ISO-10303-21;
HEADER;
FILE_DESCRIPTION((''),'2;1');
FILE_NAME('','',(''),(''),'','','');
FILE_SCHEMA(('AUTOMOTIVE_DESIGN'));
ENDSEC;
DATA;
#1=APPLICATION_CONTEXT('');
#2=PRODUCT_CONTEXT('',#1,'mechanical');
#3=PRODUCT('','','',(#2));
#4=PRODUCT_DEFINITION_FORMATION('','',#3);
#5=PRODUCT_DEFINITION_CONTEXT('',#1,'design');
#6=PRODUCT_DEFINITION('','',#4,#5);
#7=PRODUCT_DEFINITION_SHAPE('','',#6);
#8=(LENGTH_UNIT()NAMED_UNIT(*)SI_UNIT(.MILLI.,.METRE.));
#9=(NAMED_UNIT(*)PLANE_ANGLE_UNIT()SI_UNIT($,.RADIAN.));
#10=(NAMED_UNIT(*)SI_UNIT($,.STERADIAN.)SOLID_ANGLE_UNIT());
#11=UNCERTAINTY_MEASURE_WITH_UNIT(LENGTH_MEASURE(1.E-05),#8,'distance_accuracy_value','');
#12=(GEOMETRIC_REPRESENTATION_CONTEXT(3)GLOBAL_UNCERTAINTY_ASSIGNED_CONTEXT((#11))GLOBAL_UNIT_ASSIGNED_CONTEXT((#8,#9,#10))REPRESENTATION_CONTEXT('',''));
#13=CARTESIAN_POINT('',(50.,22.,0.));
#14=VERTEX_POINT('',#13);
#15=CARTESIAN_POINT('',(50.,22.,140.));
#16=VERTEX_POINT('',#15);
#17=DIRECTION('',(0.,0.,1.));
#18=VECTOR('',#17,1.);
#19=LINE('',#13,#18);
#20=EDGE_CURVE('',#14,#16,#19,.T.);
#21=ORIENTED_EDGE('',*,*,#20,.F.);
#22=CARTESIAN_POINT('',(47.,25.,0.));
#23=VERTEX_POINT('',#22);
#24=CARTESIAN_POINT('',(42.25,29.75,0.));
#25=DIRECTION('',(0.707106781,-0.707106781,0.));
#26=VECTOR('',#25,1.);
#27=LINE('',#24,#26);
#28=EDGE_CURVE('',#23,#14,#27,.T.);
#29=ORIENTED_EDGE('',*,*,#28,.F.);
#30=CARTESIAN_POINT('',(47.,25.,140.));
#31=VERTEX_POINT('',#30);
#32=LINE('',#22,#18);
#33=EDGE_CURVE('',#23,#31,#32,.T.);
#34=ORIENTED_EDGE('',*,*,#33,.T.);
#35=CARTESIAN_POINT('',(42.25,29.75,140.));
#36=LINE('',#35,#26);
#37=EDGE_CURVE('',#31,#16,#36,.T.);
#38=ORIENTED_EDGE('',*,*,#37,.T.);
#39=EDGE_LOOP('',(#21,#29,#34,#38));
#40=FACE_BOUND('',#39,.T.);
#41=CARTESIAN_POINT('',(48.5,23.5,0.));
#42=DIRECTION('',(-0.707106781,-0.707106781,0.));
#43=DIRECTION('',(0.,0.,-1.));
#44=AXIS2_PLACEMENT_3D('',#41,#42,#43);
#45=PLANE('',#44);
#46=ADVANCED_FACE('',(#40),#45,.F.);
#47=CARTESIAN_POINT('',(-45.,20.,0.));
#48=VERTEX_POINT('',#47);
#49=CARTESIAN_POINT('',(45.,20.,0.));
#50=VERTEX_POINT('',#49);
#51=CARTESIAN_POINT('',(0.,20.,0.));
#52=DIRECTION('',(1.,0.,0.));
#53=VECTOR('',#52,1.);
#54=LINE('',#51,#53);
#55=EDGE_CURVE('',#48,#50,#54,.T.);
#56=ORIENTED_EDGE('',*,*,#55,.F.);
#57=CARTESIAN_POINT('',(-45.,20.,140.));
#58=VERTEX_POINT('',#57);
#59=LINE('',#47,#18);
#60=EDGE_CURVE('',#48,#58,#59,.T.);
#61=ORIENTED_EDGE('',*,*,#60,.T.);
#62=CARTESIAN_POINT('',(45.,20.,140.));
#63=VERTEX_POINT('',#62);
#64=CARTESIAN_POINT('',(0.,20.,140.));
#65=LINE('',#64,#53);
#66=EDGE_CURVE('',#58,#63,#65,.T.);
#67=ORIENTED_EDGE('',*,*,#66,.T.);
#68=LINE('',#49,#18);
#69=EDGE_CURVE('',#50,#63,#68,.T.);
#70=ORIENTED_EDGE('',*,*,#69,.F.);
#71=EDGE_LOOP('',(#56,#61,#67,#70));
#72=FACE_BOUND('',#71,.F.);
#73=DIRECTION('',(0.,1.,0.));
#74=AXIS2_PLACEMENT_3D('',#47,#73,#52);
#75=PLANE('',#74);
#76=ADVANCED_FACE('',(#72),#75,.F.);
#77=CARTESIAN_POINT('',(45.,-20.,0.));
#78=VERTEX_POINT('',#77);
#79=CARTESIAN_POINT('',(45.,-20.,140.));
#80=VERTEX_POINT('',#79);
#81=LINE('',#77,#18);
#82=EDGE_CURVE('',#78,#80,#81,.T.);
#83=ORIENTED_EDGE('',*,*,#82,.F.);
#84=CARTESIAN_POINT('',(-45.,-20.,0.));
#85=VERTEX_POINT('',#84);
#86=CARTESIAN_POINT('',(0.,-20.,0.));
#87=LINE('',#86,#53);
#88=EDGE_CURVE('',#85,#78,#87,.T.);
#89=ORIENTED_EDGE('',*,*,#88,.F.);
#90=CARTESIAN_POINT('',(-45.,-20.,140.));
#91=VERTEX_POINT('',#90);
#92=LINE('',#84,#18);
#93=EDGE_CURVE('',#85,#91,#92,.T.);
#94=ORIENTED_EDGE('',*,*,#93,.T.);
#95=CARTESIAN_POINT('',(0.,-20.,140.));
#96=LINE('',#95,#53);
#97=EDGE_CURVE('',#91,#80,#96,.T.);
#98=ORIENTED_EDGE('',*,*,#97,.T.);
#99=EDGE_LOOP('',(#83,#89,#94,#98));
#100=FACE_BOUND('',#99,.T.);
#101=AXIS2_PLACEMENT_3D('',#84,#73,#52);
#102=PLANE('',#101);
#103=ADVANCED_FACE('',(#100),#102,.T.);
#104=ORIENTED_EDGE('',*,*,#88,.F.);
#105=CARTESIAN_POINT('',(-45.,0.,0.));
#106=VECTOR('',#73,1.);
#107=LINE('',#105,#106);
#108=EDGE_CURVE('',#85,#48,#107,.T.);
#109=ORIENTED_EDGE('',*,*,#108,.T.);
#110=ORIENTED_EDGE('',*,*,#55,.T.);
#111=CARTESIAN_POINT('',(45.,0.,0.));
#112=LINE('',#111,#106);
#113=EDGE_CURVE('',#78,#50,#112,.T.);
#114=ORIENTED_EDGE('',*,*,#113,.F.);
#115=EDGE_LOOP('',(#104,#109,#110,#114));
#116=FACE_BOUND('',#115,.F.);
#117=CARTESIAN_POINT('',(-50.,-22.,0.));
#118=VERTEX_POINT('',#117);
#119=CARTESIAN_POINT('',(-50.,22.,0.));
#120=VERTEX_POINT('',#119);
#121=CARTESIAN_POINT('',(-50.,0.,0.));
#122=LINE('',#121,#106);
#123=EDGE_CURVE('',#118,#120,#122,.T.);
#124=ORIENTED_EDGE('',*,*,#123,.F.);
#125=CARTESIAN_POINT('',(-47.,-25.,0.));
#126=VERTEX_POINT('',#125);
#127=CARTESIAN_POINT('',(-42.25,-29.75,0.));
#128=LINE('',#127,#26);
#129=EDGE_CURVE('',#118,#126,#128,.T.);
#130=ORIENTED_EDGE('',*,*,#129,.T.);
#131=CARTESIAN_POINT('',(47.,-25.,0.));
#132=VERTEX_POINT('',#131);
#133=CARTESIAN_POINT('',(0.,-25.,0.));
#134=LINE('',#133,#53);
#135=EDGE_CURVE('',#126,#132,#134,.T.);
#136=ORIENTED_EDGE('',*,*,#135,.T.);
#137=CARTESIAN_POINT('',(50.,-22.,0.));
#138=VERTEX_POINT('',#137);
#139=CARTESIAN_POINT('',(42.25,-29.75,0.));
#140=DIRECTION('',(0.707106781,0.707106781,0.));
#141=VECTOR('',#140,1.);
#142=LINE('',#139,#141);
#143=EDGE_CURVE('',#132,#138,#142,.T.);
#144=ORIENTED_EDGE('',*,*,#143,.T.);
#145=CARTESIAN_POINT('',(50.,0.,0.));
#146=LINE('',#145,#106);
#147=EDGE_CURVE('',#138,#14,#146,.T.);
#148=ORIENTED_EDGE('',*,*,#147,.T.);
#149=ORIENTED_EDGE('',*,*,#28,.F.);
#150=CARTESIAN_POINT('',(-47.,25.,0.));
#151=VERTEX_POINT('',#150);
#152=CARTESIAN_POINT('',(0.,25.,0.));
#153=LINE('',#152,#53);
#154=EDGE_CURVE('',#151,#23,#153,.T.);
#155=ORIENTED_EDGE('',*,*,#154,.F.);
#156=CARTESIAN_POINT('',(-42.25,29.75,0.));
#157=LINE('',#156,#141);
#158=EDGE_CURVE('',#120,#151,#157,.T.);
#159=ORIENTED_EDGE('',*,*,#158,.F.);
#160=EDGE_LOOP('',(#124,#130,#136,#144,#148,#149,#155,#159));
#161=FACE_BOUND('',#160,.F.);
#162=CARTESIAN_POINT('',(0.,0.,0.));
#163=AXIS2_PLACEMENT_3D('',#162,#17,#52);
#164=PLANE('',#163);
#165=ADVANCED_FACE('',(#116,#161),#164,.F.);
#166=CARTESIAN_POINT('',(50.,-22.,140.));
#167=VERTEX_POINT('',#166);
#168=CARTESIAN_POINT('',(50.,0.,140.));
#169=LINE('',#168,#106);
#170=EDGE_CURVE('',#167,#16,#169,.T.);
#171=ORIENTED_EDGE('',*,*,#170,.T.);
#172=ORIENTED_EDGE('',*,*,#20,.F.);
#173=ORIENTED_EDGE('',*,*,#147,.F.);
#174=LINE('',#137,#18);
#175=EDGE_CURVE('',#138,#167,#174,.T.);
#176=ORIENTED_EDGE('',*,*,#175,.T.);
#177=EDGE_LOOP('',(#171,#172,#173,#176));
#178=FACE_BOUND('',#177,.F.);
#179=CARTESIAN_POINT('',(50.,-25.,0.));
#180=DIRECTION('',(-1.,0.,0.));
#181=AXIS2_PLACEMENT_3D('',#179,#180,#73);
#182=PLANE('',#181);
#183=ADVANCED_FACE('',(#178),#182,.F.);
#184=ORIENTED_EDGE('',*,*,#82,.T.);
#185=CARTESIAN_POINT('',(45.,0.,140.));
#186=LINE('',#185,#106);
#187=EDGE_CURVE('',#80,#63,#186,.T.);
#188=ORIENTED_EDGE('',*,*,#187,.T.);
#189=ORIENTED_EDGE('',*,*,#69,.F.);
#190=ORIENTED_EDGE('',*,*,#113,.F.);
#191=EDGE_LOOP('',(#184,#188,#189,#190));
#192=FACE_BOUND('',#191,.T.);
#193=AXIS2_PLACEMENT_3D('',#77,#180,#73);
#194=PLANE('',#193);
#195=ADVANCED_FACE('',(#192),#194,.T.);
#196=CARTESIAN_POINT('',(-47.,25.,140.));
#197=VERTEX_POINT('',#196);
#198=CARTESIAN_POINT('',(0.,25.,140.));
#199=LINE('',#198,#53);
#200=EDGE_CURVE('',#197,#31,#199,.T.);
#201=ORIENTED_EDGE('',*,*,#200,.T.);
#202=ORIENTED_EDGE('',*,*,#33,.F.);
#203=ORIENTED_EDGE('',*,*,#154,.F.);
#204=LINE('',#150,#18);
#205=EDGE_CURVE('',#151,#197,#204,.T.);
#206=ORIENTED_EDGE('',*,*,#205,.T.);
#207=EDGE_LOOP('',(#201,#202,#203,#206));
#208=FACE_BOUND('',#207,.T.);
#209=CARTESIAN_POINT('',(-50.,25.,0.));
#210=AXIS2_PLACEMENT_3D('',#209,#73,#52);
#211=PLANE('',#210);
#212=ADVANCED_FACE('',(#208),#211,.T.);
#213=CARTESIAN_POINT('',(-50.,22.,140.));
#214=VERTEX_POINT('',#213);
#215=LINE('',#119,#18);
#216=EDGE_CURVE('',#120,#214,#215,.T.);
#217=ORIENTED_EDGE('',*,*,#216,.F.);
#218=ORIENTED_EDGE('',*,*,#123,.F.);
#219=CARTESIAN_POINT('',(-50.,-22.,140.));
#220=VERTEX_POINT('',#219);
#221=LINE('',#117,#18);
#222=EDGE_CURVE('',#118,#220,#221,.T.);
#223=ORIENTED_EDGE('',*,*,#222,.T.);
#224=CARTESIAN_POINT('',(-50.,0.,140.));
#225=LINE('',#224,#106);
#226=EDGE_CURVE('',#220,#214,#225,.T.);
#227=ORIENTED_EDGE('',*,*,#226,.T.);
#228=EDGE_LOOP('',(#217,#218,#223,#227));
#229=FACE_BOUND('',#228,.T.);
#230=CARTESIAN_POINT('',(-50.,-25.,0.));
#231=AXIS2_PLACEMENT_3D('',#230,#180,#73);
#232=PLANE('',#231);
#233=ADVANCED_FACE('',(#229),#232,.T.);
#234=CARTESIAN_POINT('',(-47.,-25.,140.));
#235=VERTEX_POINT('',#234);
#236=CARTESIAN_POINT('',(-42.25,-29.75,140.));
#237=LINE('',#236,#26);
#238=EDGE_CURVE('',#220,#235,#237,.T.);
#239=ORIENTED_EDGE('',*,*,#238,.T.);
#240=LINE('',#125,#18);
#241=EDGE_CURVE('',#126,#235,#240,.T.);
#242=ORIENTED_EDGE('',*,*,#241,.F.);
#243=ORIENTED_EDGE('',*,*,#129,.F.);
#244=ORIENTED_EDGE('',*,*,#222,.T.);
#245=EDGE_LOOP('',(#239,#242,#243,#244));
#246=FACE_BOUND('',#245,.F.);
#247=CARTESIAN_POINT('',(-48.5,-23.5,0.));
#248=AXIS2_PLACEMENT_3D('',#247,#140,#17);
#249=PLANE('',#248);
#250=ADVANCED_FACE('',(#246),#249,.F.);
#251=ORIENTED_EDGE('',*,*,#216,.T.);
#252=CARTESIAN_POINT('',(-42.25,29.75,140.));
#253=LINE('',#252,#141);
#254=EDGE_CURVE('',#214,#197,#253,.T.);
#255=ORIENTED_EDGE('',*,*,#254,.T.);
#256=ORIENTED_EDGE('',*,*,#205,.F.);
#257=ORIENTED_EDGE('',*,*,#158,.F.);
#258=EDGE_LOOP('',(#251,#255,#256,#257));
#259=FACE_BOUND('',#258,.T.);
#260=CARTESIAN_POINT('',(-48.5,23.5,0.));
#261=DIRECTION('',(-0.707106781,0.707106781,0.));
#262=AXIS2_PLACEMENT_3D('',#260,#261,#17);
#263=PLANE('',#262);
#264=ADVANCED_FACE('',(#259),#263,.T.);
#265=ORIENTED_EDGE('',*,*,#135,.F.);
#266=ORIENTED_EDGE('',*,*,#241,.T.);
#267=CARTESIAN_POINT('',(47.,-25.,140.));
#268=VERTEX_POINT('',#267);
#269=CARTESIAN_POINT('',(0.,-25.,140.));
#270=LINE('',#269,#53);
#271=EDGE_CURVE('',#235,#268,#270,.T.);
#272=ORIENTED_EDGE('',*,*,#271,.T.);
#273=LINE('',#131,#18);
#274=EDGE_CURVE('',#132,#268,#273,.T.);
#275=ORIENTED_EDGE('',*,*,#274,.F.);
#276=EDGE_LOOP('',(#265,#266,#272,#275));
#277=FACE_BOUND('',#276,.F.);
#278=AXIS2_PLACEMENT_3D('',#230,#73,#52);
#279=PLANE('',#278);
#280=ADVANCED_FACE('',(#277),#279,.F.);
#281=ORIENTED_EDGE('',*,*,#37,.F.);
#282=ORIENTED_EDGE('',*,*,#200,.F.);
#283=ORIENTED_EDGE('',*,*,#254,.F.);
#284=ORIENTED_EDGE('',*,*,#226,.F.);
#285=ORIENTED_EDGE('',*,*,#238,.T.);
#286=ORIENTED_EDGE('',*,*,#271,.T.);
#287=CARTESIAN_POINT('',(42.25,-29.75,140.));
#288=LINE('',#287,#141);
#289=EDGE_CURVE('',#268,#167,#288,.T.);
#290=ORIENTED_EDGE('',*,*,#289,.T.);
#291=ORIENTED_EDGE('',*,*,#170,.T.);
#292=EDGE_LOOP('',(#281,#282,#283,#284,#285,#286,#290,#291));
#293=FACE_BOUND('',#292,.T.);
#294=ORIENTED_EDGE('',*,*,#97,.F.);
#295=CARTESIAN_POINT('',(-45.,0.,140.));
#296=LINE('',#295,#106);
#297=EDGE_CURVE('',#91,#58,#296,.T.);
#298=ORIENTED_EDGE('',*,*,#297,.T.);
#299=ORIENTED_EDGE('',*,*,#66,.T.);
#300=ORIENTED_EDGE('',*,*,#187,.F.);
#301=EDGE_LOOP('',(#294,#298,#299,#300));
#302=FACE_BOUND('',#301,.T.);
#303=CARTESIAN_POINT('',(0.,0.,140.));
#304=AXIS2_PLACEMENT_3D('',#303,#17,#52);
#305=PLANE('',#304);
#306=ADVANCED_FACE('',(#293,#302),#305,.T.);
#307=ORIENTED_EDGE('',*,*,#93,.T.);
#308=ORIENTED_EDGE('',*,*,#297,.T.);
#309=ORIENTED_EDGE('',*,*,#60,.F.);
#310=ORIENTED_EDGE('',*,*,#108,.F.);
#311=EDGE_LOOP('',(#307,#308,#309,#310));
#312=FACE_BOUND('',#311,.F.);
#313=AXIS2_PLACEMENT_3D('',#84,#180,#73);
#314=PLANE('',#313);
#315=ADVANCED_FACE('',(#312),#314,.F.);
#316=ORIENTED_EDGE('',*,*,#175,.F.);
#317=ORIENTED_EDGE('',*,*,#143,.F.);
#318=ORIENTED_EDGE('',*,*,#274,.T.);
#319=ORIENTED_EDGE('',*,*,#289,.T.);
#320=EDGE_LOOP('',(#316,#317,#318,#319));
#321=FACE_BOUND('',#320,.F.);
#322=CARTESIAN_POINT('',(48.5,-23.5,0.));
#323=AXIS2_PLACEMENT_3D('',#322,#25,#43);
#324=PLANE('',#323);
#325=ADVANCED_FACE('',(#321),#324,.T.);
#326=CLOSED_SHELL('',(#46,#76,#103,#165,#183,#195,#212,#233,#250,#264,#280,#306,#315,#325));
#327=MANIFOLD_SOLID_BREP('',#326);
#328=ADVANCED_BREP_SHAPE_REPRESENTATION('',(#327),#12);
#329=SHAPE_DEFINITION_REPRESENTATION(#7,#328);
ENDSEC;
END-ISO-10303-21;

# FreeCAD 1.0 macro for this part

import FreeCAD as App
import Part
import Sketcher
Q = App.Units.Quantity


def edges_at(feature, points):
    """Names of the edges that pass closest to the given points."""
    edges = feature.Shape.Edges
    near = lambda p: min(range(len(edges)), key=lambda i: edges[i].distToShape(Part.Vertex(*p))[0])
    return sorted({f"Edge{near(p) + 1}" for p in points})

doc = App.newDocument("Part")
body = doc.addObject("PartDesign::Body", "Body")

sketch1 = body.newObject("Sketcher::SketchObject", "Sketch")
sketch1.AttachmentSupport = (doc.getObject("XY_Plane"), [""])
sketch1.MapMode = "FlatFace"
sketch1.addGeometry(Part.LineSegment(App.Vector(-50, 25, 0), App.Vector(-50, -25, 0)), False)
sketch1.addGeometry(Part.LineSegment(App.Vector(-50, -25, 0), App.Vector(50, -25, 0)), False)
sketch1.addGeometry(Part.LineSegment(App.Vector(50, -25, 0), App.Vector(50, 25, 0)), False)
sketch1.addGeometry(Part.LineSegment(App.Vector(50, 25, 0), App.Vector(-50, 25, 0)), False)
sketch1.addGeometry(Part.LineSegment(App.Vector(45, -20, 0), App.Vector(-45, -20, 0)), False)
sketch1.addGeometry(Part.LineSegment(App.Vector(-45, -20, 0), App.Vector(-45, 20, 0)), False)
sketch1.addGeometry(Part.LineSegment(App.Vector(-45, 20, 0), App.Vector(45, 20, 0)), False)
sketch1.addGeometry(Part.LineSegment(App.Vector(45, 20, 0), App.Vector(45, -20, 0)), False)
sketch1.addConstraint(Sketcher.Constraint("Coincident", 0, 2, 1, 1))
sketch1.addConstraint(Sketcher.Constraint("Coincident", 1, 2, 2, 1))
sketch1.addConstraint(Sketcher.Constraint("Coincident", 2, 2, 3, 1))
sketch1.addConstraint(Sketcher.Constraint("Coincident", 3, 2, 0, 1))
sketch1.addConstraint(Sketcher.Constraint("Coincident", 4, 2, 5, 1))
sketch1.addConstraint(Sketcher.Constraint("Coincident", 5, 2, 6, 1))
sketch1.addConstraint(Sketcher.Constraint("Coincident", 6, 2, 7, 1))
sketch1.addConstraint(Sketcher.Constraint("Coincident", 7, 2, 4, 1))
sketch1.addConstraint(Sketcher.Constraint("Vertical", 0))
sketch1.addConstraint(Sketcher.Constraint("Horizontal", 1))
sketch1.addConstraint(Sketcher.Constraint("Vertical", 2))
sketch1.addConstraint(Sketcher.Constraint("Horizontal", 3))
sketch1.addConstraint(Sketcher.Constraint("Horizontal", 4))
sketch1.addConstraint(Sketcher.Constraint("Vertical", 5))
sketch1.addConstraint(Sketcher.Constraint("Horizontal", 6))
sketch1.addConstraint(Sketcher.Constraint("Vertical", 7))
sketch1.addConstraint(Sketcher.Constraint("Symmetric", 0, 2, 2, 2, -1, 1))
sketch1.addConstraint(Sketcher.Constraint("Symmetric", 4, 2, 6, 2, -1, 1))
sketch1.addConstraint(Sketcher.Constraint("DistanceX", 1, 1, 1, 2, Q("100 mm")))
sketch1.addConstraint(Sketcher.Constraint("DistanceX", 4, 2, 4, 1, Q("90 mm")))
sketch1.addConstraint(Sketcher.Constraint("DistanceY", 0, 2, 0, 1, Q("50 mm")))
sketch1.addConstraint(Sketcher.Constraint("DistanceY", 5, 1, 5, 2, Q("40 mm")))
pad1 = body.newObject("PartDesign::Pad", "Pad")
pad1.Profile = sketch1
pad1.Length = 140
doc.recompute()

chamfer = body.newObject("PartDesign::Chamfer", "Chamfer")
chamfer.Base = (pad1, edges_at(pad1, [
    (50, -25, 70),
    (50, 25, 70),
    (-50, -25, 70),
    (-50, 25, 70),
]))
chamfer.Size = 3

doc.recompute()
